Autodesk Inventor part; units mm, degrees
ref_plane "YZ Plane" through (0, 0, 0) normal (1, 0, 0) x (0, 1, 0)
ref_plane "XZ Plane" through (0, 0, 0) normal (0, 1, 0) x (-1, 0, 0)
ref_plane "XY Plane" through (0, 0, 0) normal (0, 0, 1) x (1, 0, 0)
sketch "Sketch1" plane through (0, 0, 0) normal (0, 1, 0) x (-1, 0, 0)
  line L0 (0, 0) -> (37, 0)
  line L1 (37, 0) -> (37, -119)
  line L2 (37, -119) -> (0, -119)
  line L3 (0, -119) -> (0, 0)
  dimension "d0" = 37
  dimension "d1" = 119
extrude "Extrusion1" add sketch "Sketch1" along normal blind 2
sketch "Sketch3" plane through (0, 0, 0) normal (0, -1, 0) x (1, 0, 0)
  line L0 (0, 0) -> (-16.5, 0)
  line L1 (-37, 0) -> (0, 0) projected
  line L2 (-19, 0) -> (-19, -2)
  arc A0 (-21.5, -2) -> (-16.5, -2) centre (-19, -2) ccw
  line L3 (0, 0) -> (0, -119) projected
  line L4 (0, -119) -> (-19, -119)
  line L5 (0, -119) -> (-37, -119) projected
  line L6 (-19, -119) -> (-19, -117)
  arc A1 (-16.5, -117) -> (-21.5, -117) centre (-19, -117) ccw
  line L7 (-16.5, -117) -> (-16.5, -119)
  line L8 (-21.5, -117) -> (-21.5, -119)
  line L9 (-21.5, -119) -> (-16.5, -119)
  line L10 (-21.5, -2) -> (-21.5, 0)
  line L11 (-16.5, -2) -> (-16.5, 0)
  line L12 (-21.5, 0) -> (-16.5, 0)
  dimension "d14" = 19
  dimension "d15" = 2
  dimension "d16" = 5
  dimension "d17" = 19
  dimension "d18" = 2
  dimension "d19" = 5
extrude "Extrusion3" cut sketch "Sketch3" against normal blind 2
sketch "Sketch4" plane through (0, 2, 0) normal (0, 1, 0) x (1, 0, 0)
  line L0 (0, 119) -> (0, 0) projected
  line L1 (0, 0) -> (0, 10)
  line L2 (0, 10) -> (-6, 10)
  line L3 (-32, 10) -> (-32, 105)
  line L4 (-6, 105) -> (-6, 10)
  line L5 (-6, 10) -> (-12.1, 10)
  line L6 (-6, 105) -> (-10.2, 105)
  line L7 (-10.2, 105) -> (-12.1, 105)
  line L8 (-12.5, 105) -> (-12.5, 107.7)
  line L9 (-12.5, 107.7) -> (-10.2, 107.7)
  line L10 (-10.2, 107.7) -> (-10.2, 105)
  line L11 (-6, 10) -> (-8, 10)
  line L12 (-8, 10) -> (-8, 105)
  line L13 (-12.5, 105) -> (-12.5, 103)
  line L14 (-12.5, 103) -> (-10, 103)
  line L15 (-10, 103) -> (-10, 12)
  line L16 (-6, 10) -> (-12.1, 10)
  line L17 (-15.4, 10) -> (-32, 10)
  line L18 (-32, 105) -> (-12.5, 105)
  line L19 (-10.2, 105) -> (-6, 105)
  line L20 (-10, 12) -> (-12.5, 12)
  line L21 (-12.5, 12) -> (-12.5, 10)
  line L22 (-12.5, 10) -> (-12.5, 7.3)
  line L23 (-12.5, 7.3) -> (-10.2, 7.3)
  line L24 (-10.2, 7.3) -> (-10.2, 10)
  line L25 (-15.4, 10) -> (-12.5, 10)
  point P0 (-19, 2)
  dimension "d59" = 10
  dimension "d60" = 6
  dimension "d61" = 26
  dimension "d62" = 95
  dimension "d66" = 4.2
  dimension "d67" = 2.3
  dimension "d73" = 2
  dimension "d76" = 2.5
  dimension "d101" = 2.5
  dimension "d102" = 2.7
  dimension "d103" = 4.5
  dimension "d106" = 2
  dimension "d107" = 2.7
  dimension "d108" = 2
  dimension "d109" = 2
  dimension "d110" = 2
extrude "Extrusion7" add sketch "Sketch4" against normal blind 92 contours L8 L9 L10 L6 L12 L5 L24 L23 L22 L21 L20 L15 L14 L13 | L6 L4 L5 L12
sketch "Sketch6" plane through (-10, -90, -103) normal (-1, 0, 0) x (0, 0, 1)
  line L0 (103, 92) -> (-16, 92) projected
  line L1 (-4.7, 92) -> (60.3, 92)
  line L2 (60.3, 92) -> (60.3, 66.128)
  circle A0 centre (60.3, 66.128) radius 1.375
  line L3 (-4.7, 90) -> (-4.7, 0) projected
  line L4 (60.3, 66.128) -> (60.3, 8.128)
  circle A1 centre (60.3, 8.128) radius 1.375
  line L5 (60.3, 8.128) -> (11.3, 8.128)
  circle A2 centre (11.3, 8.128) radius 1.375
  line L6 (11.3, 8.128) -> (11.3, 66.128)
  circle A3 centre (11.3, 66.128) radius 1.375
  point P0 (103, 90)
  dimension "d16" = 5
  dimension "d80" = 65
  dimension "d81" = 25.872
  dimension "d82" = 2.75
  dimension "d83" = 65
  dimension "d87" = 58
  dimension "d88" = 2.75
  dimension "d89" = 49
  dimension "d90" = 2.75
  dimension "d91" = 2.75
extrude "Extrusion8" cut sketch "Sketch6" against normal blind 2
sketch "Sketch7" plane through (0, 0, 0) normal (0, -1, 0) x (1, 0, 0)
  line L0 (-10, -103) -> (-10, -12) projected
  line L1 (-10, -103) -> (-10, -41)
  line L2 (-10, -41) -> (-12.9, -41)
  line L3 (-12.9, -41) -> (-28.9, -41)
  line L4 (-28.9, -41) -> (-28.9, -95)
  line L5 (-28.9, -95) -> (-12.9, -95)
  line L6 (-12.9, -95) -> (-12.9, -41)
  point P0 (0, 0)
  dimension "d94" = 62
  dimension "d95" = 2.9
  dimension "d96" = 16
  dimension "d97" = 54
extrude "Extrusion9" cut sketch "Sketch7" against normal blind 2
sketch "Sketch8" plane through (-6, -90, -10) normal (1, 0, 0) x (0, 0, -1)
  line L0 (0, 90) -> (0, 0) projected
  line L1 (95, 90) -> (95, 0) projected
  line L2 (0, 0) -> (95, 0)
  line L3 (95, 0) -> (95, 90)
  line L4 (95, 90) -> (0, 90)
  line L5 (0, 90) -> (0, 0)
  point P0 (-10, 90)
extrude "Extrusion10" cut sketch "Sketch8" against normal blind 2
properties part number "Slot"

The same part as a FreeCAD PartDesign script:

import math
import FreeCAD as App
import Part
import Sketcher
Q = App.Units.Quantity


def add_polygon(sketch, points):
    """Adds a closed chain of lines whose ends are joined by coincident constraints."""
    first, n = sketch.GeometryCount, len(points)
    for a, b in zip(points, points[1:] + points[:1]):
        sketch.addGeometry(Part.LineSegment(App.Vector(*a, 0), App.Vector(*b, 0)), False)
    for i in range(n):
        sketch.addConstraint(Sketcher.Constraint("Coincident", first + i, 2, first + (i + 1) % n, 1))

doc = App.newDocument("Part")
body = doc.addObject("PartDesign::Body", "Body")

# Sketch on XZ plane
sketch1 = body.newObject("Sketcher::SketchObject", "Sketch")
sketch1.AttachmentSupport = (doc.getObject("XZ_Plane"), [""])
sketch1.MapMode = "FlatFace"
add_polygon(sketch1, [(-37, 0), (0, 0), (0, -119), (-37, -119)])  # lines 0-3
sketch1.addConstraint(Sketcher.Constraint("Horizontal", 0))
sketch1.addConstraint(Sketcher.Constraint("Vertical", 1))
sketch1.addConstraint(Sketcher.Constraint("Horizontal", 2))
sketch1.addConstraint(Sketcher.Constraint("Vertical", 3))
sketch1.addConstraint(Sketcher.Constraint("Coincident", 0, 2, -1, 1))
sketch1.addConstraint(Sketcher.Constraint("DistanceX", 0, 1, 0, 2, Q("37 mm")))
sketch1.addConstraint(Sketcher.Constraint("DistanceY", 1, 2, 1, 1, Q("119 mm")))
pad1 = body.newObject("PartDesign::Pad", "Pad")
pad1.Profile = sketch1
pad1.Length = 2
pad1.Reversed = True

# Sketch on XZ plane
sketch2 = body.newObject("Sketcher::SketchObject", "Sketch001")
sketch2.AttachmentSupport = (doc.getObject("XZ_Plane"), [""])
sketch2.MapMode = "FlatFace"
sketch2.addGeometry(Part.LineSegment(App.Vector(-16.5, -2, 0), App.Vector(-16.5, 0, 0)), False)
sketch2.addGeometry(Part.LineSegment(App.Vector(-16.5, 0, 0), App.Vector(-21.5, 0, 0)), False)
sketch2.addGeometry(Part.LineSegment(App.Vector(-21.5, 0, 0), App.Vector(-21.5, -2, 0)), False)
sketch2.addGeometry(Part.ArcOfCircle(Part.Circle(App.Vector(-19, -2, 0), App.Vector(0, 0, 1), 2.5), math.radians(180), math.radians(360)), False)
sketch2.addGeometry(Part.LineSegment(App.Vector(-21.5, -119, 0), App.Vector(-16.5, -119, 0)), False)
sketch2.addGeometry(Part.LineSegment(App.Vector(-16.5, -119, 0), App.Vector(-16.5, -117, 0)), False)
sketch2.addGeometry(Part.ArcOfCircle(Part.Circle(App.Vector(-19, -117, 0), App.Vector(0, 0, 1), 2.5), math.radians(0), math.radians(180)), False)
sketch2.addGeometry(Part.LineSegment(App.Vector(-21.5, -117, 0), App.Vector(-21.5, -119, 0)), False)
sketch2.addConstraint(Sketcher.Constraint("Coincident", 0, 2, 1, 1))
sketch2.addConstraint(Sketcher.Constraint("Coincident", 1, 2, 2, 1))
sketch2.addConstraint(Sketcher.Constraint("Tangent", 2, 2, 3, 1))
sketch2.addConstraint(Sketcher.Constraint("Tangent", 3, 2, 0, 1))
sketch2.addConstraint(Sketcher.Constraint("Coincident", 4, 2, 5, 1))
sketch2.addConstraint(Sketcher.Constraint("Tangent", 5, 2, 6, 1))
sketch2.addConstraint(Sketcher.Constraint("Tangent", 6, 2, 7, 1))
sketch2.addConstraint(Sketcher.Constraint("Coincident", 7, 2, 4, 1))
sketch2.addConstraint(Sketcher.Constraint("Vertical", 0))
sketch2.addConstraint(Sketcher.Constraint("Horizontal", 1))
sketch2.addConstraint(Sketcher.Constraint("Vertical", 2))
sketch2.addConstraint(Sketcher.Constraint("Horizontal", 4))
sketch2.addConstraint(Sketcher.Constraint("Vertical", 5))
sketch2.addConstraint(Sketcher.Constraint("Vertical", 7))
sketch2.addConstraint(Sketcher.Constraint("Equal", 3, 6))
sketch2.addConstraint(Sketcher.Constraint("PointOnObject", 0, 2, -1))
sketch2.addConstraint(Sketcher.Constraint("Vertical", 3, 3, 6, 3))
sketch2.addConstraint(Sketcher.Constraint("Equal", 2, 5))
sketch2.addConstraint(Sketcher.Constraint("Radius", 3, Q("2.5 mm")))
sketch2.addConstraint(Sketcher.Constraint("DistanceY", 0, 1, 0, 2, Q("2 mm")))
sketch2.addConstraint(Sketcher.Constraint("DistanceX", 3, 3, -1, 1, Q("19 mm")))
sketch2.addConstraint(Sketcher.Constraint("DistanceY", 6, 3, -1, 1, Q("117 mm")))
pocket1 = body.newObject("PartDesign::Pocket", "Pocket")
pocket1.Profile = sketch2
pocket1.Length = 2

# Sketch on XZ plane
sketch3 = body.newObject("Sketcher::SketchObject", "Sketch002")
sketch3.AttachmentSupport = (doc.getObject("XZ_Plane"), [""])
sketch3.MapMode = "FlatFace"
sketch3.AttachmentOffset = App.Placement(App.Vector(0, 0, -2), App.Rotation())
add_polygon(sketch3, [(-12.5, -107.7), (-12.5, -103), (-10, -103), (-10, -12), (-12.5, -12), (-12.5, -7.3), (-10.2, -7.3), (-10.2, -10), (-6, -10), (-6, -105), (-10.2, -105), (-10.2, -107.7)])  # lines 0-11
sketch3.addConstraint(Sketcher.Constraint("Vertical", 0))
sketch3.addConstraint(Sketcher.Constraint("Horizontal", 1))
sketch3.addConstraint(Sketcher.Constraint("Vertical", 2))
sketch3.addConstraint(Sketcher.Constraint("Horizontal", 3))
sketch3.addConstraint(Sketcher.Constraint("Vertical", 4))
sketch3.addConstraint(Sketcher.Constraint("Horizontal", 5))
sketch3.addConstraint(Sketcher.Constraint("Vertical", 6))
sketch3.addConstraint(Sketcher.Constraint("Horizontal", 7))
sketch3.addConstraint(Sketcher.Constraint("Vertical", 8))
sketch3.addConstraint(Sketcher.Constraint("Horizontal", 9))
sketch3.addConstraint(Sketcher.Constraint("Vertical", 10))
sketch3.addConstraint(Sketcher.Constraint("Horizontal", 11))
sketch3.addConstraint(Sketcher.Constraint("Vertical", 0, 2, 3, 2))
sketch3.addConstraint(Sketcher.Constraint("Vertical", 6, 2, 9, 2))
sketch3.addConstraint(Sketcher.Constraint("Equal", 0, 4))
sketch3.addConstraint(Sketcher.Constraint("Equal", 6, 10))
sketch3.addConstraint(Sketcher.Constraint("DistanceY", 8, 2, 8, 1, Q("95 mm")))
sketch3.addConstraint(Sketcher.Constraint("DistanceX", 1, 1, 1, 2, Q("2.5 mm")))
sketch3.addConstraint(Sketcher.Constraint("DistanceX", 5, 1, 5, 2, Q("2.3 mm")))
sketch3.addConstraint(Sketcher.Constraint("DistanceX", 7, 1, 7, 2, Q("4.2 mm")))
sketch3.addConstraint(Sketcher.Constraint("DistanceY", 6, 2, 6, 1, Q("2.7 mm")))
sketch3.addConstraint(Sketcher.Constraint("DistanceX", 1, 2, -1, 1, Q("10 mm")))
sketch3.addConstraint(Sketcher.Constraint("DistanceY", 6, 2, -1, 1, Q("10 mm")))
sketch3.addConstraint(Sketcher.Constraint("DistanceY", 2, 2, 6, 2, Q("2 mm")))
pad2 = body.newObject("PartDesign::Pad", "Pad001")
pad2.Profile = sketch3
pad2.Length = 92

# Sketch on YZ plane
sketch4 = body.newObject("Sketcher::SketchObject", "Sketch003")
sketch4.AttachmentSupport = (doc.getObject("YZ_Plane"), [""])
sketch4.MapMode = "FlatFace"
sketch4.AttachmentOffset = App.Placement(App.Vector(0, 0, -10), App.Rotation())
sketch4.addGeometry(Part.Circle(App.Vector(-23.872, -42.7, 0), App.Vector(0, 0, 1), 1.375), False)
sketch4.addGeometry(Part.Circle(App.Vector(-23.872, -91.7, 0), App.Vector(0, 0, 1), 1.375), False)
sketch4.addGeometry(Part.Circle(App.Vector(-81.872, -91.7, 0), App.Vector(0, 0, 1), 1.375), False)
sketch4.addGeometry(Part.Circle(App.Vector(-81.872, -42.7, 0), App.Vector(0, 0, 1), 1.375), False)
sketch4.addConstraint(Sketcher.Constraint("Equal", 0, 1))
sketch4.addConstraint(Sketcher.Constraint("Equal", 1, 2))
sketch4.addConstraint(Sketcher.Constraint("Equal", 2, 3))
sketch4.addConstraint(Sketcher.Constraint("Horizontal", 1, 3, 2, 3))
sketch4.addConstraint(Sketcher.Constraint("Horizontal", 0, 3, 3, 3))
sketch4.addConstraint(Sketcher.Constraint("Vertical", 0, 3, 1, 3))
sketch4.addConstraint(Sketcher.Constraint("Vertical", 2, 3, 3, 3))
sketch4.addConstraint(Sketcher.Constraint("Diameter", 0, Q("2.75 mm")))
sketch4.addConstraint(Sketcher.Constraint("DistanceY", 1, 3, 0, 3, Q("49 mm")))
sketch4.addConstraint(Sketcher.Constraint("DistanceX", 2, 3, 1, 3, Q("58 mm")))
sketch4.addConstraint(Sketcher.Constraint("DistanceY", 0, 3, -1, 1, Q("42.7 mm")))
sketch4.addConstraint(Sketcher.Constraint("DistanceX", 0, 3, -1, 1, Q("23.872 mm")))
pocket2 = body.newObject("PartDesign::Pocket", "Pocket001")
pocket2.Profile = sketch4
pocket2.Length = 2
pocket2.Reversed = True

# Sketch on XZ plane
sketch5 = body.newObject("Sketcher::SketchObject", "Sketch004")
sketch5.AttachmentSupport = (doc.getObject("XZ_Plane"), [""])
sketch5.MapMode = "FlatFace"
add_polygon(sketch5, [(-12.9, -95), (-12.9, -41), (-28.9, -41), (-28.9, -95)])  # lines 0-3
sketch5.addConstraint(Sketcher.Constraint("Vertical", 0))
sketch5.addConstraint(Sketcher.Constraint("Horizontal", 1))
sketch5.addConstraint(Sketcher.Constraint("Vertical", 2))
sketch5.addConstraint(Sketcher.Constraint("Horizontal", 3))
sketch5.addConstraint(Sketcher.Constraint("DistanceX", 1, 2, 1, 1, Q("16 mm")))
sketch5.addConstraint(Sketcher.Constraint("DistanceY", 0, 1, 0, 2, Q("54 mm")))
sketch5.addConstraint(Sketcher.Constraint("DistanceY", 0, 2, -1, 1, Q("41 mm")))
sketch5.addConstraint(Sketcher.Constraint("DistanceX", 0, 2, -1, 1, Q("12.9 mm")))
pocket3 = body.newObject("PartDesign::Pocket", "Pocket002")
pocket3.Profile = sketch5
pocket3.Length = 2

# Sketch on YZ plane
sketch6 = body.newObject("Sketcher::SketchObject", "Sketch005")
sketch6.AttachmentSupport = (doc.getObject("YZ_Plane"), [""])
sketch6.MapMode = "FlatFace"
sketch6.AttachmentOffset = App.Placement(App.Vector(0, 0, -6), App.Rotation())
add_polygon(sketch6, [(0, -105), (0, -10), (-90, -10), (-90, -105)])  # lines 0-3
sketch6.addConstraint(Sketcher.Constraint("Vertical", 0))
sketch6.addConstraint(Sketcher.Constraint("Horizontal", 1))
sketch6.addConstraint(Sketcher.Constraint("Vertical", 2))
sketch6.addConstraint(Sketcher.Constraint("Horizontal", 3))
sketch6.addConstraint(Sketcher.Constraint("PointOnObject", 0, 2, -2))
sketch6.addConstraint(Sketcher.Constraint("DistanceX", 1, 2, 1, 1, Q("90 mm")))
sketch6.addConstraint(Sketcher.Constraint("DistanceY", 0, 1, 0, 2, Q("95 mm")))
sketch6.addConstraint(Sketcher.Constraint("DistanceY", 0, 2, -1, 1, Q("10 mm")))
pocket4 = body.newObject("PartDesign::Pocket", "Pocket003")
pocket4.Profile = sketch6
pocket4.Length = 2

doc.recompute()
